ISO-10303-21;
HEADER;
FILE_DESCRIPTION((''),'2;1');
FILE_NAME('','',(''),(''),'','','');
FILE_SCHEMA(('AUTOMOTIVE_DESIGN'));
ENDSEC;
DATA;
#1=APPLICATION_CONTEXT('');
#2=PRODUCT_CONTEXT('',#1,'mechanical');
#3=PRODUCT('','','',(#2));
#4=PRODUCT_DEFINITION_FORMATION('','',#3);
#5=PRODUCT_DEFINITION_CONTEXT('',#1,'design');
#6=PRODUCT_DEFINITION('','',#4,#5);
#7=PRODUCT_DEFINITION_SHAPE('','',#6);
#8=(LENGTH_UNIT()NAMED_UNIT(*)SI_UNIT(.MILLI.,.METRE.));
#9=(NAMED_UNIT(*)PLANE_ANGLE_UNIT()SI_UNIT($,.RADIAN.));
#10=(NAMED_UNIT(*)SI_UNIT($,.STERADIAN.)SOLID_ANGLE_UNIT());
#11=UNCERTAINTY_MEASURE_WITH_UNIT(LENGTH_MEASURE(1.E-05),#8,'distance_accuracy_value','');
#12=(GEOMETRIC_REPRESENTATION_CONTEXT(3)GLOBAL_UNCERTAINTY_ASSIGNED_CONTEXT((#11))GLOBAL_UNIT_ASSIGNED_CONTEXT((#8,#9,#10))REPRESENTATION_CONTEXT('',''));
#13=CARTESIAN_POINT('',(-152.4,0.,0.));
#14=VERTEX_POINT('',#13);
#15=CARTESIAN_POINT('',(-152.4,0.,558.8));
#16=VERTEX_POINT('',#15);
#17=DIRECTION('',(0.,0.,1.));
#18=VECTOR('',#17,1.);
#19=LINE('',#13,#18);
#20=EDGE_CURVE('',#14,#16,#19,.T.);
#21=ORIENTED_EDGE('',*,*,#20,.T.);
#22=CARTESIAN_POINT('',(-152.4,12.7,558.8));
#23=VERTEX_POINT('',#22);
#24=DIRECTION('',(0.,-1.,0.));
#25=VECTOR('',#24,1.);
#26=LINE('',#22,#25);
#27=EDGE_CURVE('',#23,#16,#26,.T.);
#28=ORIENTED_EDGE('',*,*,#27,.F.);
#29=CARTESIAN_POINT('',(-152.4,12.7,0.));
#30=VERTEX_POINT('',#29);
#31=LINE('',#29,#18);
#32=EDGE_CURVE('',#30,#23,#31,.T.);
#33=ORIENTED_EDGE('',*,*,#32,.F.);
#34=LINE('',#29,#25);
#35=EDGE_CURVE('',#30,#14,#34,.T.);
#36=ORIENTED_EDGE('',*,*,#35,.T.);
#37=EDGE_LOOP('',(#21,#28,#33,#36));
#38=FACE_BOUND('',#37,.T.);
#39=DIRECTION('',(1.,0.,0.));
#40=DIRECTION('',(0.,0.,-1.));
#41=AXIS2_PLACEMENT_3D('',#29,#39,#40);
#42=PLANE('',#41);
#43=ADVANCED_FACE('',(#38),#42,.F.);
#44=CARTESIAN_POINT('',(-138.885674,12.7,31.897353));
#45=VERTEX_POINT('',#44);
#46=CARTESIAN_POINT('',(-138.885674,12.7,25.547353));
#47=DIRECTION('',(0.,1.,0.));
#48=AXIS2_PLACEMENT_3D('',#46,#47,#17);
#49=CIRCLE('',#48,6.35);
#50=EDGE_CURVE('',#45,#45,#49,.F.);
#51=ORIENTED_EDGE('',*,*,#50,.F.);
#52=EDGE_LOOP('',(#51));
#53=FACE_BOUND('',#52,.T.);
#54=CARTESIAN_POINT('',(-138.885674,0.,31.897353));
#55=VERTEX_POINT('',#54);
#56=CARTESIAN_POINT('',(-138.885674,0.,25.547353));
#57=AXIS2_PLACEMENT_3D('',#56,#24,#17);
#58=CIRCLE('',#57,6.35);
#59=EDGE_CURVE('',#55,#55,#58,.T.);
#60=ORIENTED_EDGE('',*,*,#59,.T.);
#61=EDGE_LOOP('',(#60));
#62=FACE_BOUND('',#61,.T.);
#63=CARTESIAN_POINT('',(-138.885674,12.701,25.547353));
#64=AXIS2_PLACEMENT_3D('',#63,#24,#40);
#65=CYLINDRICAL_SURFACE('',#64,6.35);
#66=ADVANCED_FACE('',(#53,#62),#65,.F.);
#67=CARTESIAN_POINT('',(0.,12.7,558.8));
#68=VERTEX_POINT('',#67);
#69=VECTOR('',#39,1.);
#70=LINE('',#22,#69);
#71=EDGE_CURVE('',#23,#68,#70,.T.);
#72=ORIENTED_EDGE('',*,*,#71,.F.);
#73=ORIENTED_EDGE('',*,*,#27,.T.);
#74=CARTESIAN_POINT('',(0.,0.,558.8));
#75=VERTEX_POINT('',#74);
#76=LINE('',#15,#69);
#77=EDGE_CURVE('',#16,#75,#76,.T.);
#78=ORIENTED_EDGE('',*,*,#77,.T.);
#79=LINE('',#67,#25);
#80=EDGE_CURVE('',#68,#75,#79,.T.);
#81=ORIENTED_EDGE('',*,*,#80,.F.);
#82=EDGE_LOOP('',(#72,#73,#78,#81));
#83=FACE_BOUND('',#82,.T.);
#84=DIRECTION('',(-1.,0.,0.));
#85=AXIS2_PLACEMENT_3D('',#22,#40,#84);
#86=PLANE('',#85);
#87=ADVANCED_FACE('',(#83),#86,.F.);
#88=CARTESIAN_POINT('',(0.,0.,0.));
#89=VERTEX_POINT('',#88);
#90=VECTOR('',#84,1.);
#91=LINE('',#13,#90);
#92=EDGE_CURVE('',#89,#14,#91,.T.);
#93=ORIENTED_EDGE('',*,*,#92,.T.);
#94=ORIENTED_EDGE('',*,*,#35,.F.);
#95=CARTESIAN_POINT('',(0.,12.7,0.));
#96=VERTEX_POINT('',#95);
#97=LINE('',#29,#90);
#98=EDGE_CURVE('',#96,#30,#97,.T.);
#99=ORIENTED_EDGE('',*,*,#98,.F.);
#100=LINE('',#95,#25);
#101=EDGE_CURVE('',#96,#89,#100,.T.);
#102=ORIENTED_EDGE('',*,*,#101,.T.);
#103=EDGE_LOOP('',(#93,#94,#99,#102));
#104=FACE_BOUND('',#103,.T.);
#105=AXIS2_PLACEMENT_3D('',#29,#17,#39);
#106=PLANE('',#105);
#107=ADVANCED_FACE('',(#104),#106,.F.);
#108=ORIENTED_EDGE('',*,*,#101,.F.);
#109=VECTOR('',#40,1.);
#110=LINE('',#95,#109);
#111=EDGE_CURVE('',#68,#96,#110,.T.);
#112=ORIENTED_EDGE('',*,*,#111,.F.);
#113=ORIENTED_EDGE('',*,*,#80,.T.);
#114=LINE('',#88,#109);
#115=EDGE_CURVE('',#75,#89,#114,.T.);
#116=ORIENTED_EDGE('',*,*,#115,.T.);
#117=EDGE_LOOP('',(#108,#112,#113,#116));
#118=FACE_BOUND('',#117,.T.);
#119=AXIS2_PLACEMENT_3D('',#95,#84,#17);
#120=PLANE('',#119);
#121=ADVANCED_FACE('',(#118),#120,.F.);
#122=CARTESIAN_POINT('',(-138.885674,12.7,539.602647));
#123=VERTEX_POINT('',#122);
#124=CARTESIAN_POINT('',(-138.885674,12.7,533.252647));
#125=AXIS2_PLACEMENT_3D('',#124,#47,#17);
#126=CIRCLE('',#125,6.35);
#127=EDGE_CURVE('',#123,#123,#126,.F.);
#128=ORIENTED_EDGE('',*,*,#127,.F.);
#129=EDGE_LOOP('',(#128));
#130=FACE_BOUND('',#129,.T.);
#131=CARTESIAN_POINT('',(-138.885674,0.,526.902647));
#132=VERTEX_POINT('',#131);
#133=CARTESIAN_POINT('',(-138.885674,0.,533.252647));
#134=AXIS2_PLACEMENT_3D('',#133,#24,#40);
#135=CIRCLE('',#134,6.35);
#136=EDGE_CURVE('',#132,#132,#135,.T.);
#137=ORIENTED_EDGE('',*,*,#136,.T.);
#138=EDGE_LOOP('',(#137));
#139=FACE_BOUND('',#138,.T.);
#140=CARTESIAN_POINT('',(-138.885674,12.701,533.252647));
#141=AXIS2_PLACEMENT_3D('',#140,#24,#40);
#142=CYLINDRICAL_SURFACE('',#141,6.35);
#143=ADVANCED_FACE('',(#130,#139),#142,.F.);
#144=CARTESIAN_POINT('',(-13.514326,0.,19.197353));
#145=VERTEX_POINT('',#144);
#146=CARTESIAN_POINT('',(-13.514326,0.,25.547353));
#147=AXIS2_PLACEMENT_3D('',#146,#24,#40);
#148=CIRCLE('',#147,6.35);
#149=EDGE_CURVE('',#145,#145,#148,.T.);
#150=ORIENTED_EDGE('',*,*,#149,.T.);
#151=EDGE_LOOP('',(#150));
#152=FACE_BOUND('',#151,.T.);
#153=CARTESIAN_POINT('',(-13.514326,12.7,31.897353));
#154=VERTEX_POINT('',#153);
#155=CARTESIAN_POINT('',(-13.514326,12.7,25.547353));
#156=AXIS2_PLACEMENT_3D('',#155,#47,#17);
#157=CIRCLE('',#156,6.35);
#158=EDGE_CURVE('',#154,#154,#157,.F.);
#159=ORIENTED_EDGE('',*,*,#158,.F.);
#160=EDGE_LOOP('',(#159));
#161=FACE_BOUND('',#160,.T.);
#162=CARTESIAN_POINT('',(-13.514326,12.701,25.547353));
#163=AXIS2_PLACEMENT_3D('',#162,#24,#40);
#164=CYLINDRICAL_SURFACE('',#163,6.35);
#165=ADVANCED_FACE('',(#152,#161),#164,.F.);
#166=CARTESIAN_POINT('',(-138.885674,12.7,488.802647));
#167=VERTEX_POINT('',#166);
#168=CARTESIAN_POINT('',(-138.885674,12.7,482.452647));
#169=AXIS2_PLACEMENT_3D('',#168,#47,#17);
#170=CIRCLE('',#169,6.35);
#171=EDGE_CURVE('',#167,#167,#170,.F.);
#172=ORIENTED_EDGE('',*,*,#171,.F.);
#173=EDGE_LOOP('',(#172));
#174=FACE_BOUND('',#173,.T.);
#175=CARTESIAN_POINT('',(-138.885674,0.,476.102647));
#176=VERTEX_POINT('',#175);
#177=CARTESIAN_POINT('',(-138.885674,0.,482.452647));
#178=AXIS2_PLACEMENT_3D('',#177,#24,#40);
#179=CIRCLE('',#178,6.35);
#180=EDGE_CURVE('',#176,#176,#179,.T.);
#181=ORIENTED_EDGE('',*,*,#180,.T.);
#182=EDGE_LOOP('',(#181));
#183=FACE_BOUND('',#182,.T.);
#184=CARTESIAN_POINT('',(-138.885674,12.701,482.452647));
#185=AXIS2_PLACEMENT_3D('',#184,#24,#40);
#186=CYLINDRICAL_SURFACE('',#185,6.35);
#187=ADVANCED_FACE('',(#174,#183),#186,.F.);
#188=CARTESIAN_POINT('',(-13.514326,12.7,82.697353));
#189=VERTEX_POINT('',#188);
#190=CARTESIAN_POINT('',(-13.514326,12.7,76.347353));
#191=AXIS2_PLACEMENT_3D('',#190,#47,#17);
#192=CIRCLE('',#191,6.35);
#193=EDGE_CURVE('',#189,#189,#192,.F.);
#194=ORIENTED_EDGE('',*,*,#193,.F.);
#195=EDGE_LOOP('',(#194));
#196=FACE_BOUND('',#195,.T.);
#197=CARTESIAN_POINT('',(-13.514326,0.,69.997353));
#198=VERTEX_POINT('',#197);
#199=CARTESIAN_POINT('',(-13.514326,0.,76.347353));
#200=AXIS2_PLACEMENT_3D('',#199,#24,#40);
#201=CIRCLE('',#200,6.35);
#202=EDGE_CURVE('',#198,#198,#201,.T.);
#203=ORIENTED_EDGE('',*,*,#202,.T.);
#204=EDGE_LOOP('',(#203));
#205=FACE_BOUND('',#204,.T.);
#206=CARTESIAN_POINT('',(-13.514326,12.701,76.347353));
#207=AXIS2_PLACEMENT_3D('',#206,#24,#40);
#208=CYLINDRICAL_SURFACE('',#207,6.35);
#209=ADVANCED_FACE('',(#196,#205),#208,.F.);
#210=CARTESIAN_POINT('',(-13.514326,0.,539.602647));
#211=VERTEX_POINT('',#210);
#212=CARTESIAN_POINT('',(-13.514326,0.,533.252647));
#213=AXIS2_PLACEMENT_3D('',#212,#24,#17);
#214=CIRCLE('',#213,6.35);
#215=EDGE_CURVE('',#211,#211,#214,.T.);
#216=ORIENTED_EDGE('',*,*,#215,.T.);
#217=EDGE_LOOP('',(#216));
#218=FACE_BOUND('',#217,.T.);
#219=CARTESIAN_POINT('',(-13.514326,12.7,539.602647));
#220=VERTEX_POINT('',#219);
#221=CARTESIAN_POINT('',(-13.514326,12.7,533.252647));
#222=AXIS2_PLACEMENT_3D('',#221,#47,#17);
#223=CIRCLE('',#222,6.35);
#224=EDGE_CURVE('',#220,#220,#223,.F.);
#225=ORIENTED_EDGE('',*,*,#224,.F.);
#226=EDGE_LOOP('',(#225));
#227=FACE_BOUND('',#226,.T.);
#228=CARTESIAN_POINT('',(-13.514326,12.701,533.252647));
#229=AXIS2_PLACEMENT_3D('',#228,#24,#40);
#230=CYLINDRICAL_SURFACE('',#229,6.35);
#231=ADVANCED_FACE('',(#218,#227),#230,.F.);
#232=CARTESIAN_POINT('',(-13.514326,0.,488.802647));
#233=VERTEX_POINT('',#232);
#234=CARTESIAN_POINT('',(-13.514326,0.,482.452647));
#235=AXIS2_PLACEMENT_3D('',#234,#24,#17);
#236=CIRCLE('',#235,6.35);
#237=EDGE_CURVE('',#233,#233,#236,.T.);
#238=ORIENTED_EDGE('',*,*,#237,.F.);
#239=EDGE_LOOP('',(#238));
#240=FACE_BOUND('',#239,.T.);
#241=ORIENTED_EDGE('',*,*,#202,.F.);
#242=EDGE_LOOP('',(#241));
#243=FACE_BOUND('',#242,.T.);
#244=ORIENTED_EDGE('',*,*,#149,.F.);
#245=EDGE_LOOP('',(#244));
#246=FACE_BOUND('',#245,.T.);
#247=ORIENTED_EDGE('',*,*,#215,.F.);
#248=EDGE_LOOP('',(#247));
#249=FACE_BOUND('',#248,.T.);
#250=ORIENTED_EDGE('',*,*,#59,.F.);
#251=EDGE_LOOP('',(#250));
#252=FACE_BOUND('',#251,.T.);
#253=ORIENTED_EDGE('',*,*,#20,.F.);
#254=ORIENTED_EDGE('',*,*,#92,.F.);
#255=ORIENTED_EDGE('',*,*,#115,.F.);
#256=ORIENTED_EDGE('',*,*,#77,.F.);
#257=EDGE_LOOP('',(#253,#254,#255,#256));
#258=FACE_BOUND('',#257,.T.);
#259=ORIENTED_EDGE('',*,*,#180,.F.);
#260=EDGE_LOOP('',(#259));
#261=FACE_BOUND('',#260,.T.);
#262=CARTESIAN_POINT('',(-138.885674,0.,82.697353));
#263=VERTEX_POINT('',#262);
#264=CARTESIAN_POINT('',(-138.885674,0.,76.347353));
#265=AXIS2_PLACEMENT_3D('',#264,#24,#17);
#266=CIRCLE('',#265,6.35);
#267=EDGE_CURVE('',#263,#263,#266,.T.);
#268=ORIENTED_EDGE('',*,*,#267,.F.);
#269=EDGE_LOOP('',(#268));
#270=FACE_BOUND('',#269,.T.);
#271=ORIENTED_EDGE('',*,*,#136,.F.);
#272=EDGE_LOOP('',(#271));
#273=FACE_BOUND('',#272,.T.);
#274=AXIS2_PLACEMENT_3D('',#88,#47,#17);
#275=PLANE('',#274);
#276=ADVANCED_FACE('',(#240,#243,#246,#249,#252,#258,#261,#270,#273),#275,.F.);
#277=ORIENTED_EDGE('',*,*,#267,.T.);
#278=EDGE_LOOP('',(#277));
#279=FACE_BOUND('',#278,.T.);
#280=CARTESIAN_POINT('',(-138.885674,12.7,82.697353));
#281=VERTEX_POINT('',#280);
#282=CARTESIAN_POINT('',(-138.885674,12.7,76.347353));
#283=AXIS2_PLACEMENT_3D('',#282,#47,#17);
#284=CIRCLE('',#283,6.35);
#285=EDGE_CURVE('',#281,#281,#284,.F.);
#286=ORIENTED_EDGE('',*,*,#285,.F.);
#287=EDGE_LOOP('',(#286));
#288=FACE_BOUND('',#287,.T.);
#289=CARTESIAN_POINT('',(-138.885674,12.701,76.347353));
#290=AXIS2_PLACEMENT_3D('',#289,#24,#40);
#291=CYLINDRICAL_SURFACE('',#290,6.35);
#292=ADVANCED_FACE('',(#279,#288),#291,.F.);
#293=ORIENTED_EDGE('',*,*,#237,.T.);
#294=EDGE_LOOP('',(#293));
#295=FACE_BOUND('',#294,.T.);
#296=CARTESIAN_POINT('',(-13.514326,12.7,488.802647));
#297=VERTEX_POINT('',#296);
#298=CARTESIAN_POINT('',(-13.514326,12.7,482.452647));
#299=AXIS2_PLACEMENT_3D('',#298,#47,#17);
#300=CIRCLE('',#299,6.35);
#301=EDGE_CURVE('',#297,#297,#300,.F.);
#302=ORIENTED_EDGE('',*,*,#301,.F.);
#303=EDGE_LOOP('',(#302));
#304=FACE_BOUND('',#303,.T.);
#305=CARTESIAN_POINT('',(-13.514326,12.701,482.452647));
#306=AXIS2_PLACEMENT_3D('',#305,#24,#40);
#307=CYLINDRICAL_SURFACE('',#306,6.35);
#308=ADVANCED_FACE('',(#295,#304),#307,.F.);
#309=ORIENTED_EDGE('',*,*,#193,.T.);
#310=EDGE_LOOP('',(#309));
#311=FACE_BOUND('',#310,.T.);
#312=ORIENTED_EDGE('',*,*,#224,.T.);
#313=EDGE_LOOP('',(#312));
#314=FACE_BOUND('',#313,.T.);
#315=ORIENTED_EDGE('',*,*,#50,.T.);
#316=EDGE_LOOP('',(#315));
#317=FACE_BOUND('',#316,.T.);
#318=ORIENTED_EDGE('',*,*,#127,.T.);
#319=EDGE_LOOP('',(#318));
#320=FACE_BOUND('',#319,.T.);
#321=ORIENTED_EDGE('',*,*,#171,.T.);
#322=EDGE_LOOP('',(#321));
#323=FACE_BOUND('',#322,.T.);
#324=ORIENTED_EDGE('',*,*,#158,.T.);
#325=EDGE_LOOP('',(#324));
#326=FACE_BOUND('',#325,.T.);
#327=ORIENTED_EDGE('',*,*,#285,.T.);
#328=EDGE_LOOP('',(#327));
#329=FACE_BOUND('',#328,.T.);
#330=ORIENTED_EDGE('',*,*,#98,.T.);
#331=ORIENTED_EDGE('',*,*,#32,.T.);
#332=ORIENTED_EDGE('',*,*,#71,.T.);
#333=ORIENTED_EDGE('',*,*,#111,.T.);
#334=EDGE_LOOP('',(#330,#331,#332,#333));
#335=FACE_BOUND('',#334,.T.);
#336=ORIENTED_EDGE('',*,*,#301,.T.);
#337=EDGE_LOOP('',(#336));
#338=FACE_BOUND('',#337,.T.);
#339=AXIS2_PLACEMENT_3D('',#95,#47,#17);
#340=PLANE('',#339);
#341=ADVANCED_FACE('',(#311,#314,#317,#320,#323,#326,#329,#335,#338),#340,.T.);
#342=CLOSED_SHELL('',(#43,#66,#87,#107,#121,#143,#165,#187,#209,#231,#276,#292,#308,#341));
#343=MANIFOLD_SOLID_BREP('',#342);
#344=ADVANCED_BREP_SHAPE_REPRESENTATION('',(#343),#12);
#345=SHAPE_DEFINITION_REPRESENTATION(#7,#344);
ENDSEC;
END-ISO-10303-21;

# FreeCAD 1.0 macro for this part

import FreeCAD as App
import Part
import Sketcher
Q = App.Units.Quantity

doc = App.newDocument("Part")
params = doc.addObject("Spreadsheet::Sheet", "Params")
for row, (alias, value) in enumerate([
    ("sketch1_width", "6 in"),
    ("sketch1_height", "22 in"),
    ("pad1_length", "0.5 in"),
    ("sketch2_diameter", "0.5 in"),
    ("sketch3_diameter", "0.5 in"),
    ("sketch4_diameter", "0.5 in"),
    ("sketch5_diameter", "0.5 in"),
    ("sketch6_diameter", "0.5 in"),
    ("sketch7_diameter", "0.5 in"),
    ("sketch8_diameter", "0.5 in"),
    ("sketch9_diameter", "0.5 in"),
], start=1):
    params.set(f"A{row}", alias)
    params.set(f"B{row}", "=" + value)
    params.setAlias(f"B{row}", alias)

body = doc.addObject("PartDesign::Body", "Body")

# Sketch on XZ plane
sketch1 = body.newObject("Sketcher::SketchObject", "Sketch")
sketch1.AttachmentSupport = (doc.getObject("XZ_Plane"), [""])
sketch1.MapMode = "FlatFace"
sketch1.addGeometry([
    Part.LineSegment(App.Vector(-152, 0, 0), App.Vector(-152, 559, 0)),
    Part.LineSegment(App.Vector(-152, 559, 0), App.Vector(0, 559, 0)),
    Part.LineSegment(App.Vector(0, 559, 0), App.Vector(0, 0, 0)),
    Part.LineSegment(App.Vector(0, 0, 0), App.Vector(-152, 0, 0)),
], False)
sketch1.addConstraint([
    Sketcher.Constraint("Coincident", 0, 2, 1, 1),
    Sketcher.Constraint("Coincident", 1, 2, 2, 1),
    Sketcher.Constraint("Coincident", 2, 2, 3, 1),
    Sketcher.Constraint("Coincident", 3, 2, 0, 1),
    Sketcher.Constraint("Vertical", 0),
    Sketcher.Constraint("Horizontal", 1),
    Sketcher.Constraint("Vertical", 2),
    Sketcher.Constraint("Horizontal", 3),
    Sketcher.Constraint("Coincident", 2, 2, -1, 1),
    Sketcher.Constraint("DistanceX", 1, 1, 1, 2, Q("6 in")),
    Sketcher.Constraint("DistanceY", 0, 1, 0, 2, Q("22 in")),
])
sketch1.setExpression("Constraints[9]", "Params.sketch1_width")
sketch1.setExpression("Constraints[10]", "Params.sketch1_height")
pad1 = body.newObject("PartDesign::Pad", "Pad")
pad1.Profile = sketch1
pad1.setExpression("Length", "Params.pad1_length")
pad1.Reversed = True

# Sketch on XZ plane
sketch2 = body.newObject("Sketcher::SketchObject", "Sketch001")
sketch2.AttachmentSupport = (doc.getObject("XZ_Plane"), [""])
sketch2.MapMode = "FlatFace"
sketch2.addGeometry(Part.Circle(App.Vector(-14, 26, 0), App.Vector(0, 0, 1), 6), False)
sketch2.addConstraint([
    Sketcher.Constraint("Diameter", 0, Q("0.5 in")),
    Sketcher.Constraint("DistanceX", 0, 3, -1, 1, 13.514326),
    Sketcher.Constraint("DistanceY", -1, 1, 0, 3, 25.547353),
])
sketch2.setExpression("Constraints[0]", "Params.sketch2_diameter")
pocket1 = body.newObject("PartDesign::Pocket", "Pocket")
pocket1.Profile = sketch2
pocket1.Type = "UpToFirst"

# Sketch on XZ plane
sketch3 = body.newObject("Sketcher::SketchObject", "Sketch002")
sketch3.AttachmentSupport = (doc.getObject("XZ_Plane"), [""])
sketch3.MapMode = "FlatFace"
sketch3.addGeometry(Part.Circle(App.Vector(-14, 76, 0), App.Vector(0, 0, 1), 6), False)
sketch3.addConstraint([
    Sketcher.Constraint("Diameter", 0, Q("0.5 in")),
    Sketcher.Constraint("DistanceX", 0, 3, -1, 1, 13.514326),
    Sketcher.Constraint("DistanceY", -1, 1, 0, 3, 76.347353),
])
sketch3.setExpression("Constraints[0]", "Params.sketch3_diameter")
pocket2 = body.newObject("PartDesign::Pocket", "Pocket001")
pocket2.Profile = sketch3
pocket2.Type = "UpToFirst"

# Sketch on XZ plane
sketch4 = body.newObject("Sketcher::SketchObject", "Sketch003")
sketch4.AttachmentSupport = (doc.getObject("XZ_Plane"), [""])
sketch4.MapMode = "FlatFace"
sketch4.addGeometry(Part.Circle(App.Vector(-14, 482, 0), App.Vector(0, 0, 1), 6), False)
sketch4.addConstraint([
    Sketcher.Constraint("Diameter", 0, Q("0.5 in")),
    Sketcher.Constraint("DistanceX", 0, 3, -1, 1, 13.514326),
    Sketcher.Constraint("DistanceY", -1, 1, 0, 3, 482.452647),
])
sketch4.setExpression("Constraints[0]", "Params.sketch4_diameter")
pocket3 = body.newObject("PartDesign::Pocket", "Pocket002")
pocket3.Profile = sketch4
pocket3.Type = "UpToFirst"

# Sketch on XZ plane
sketch5 = body.newObject("Sketcher::SketchObject", "Sketch004")
sketch5.AttachmentSupport = (doc.getObject("XZ_Plane"), [""])
sketch5.MapMode = "FlatFace"
sketch5.addGeometry(Part.Circle(App.Vector(-14, 533, 0), App.Vector(0, 0, 1), 6), False)
sketch5.addConstraint([
    Sketcher.Constraint("Diameter", 0, Q("0.5 in")),
    Sketcher.Constraint("DistanceX", 0, 3, -1, 1, 13.514326),
    Sketcher.Constraint("DistanceY", -1, 1, 0, 3, 533.252647),
])
sketch5.setExpression("Constraints[0]", "Params.sketch5_diameter")
pocket4 = body.newObject("PartDesign::Pocket", "Pocket003")
pocket4.Profile = sketch5
pocket4.Type = "UpToFirst"

# Sketch on XZ plane
sketch6 = body.newObject("Sketcher::SketchObject", "Sketch005")
sketch6.AttachmentSupport = (doc.getObject("XZ_Plane"), [""])
sketch6.MapMode = "FlatFace"
sketch6.addGeometry(Part.Circle(App.Vector(-139, 76, 0), App.Vector(0, 0, 1), 6), False)
sketch6.addConstraint([
    Sketcher.Constraint("Diameter", 0, Q("0.5 in")),
    Sketcher.Constraint("DistanceX", 0, 3, -1, 1, 138.885674),
    Sketcher.Constraint("DistanceY", -1, 1, 0, 3, 76.347353),
])
sketch6.setExpression("Constraints[0]", "Params.sketch6_diameter")
pocket5 = body.newObject("PartDesign::Pocket", "Pocket004")
pocket5.Profile = sketch6
pocket5.Type = "UpToFirst"

# Sketch on XZ plane
sketch7 = body.newObject("Sketcher::SketchObject", "Sketch006")
sketch7.AttachmentSupport = (doc.getObject("XZ_Plane"), [""])
sketch7.MapMode = "FlatFace"
sketch7.addGeometry(Part.Circle(App.Vector(-139, 26, 0), App.Vector(0, 0, 1), 6), False)
sketch7.addConstraint([
    Sketcher.Constraint("Diameter", 0, Q("0.5 in")),
    Sketcher.Constraint("DistanceX", 0, 3, -1, 1, 138.885674),
    Sketcher.Constraint("DistanceY", -1, 1, 0, 3, 25.547353),
])
sketch7.setExpression("Constraints[0]", "Params.sketch7_diameter")
pocket6 = body.newObject("PartDesign::Pocket", "Pocket005")
pocket6.Profile = sketch7
pocket6.Type = "UpToFirst"

# Sketch on XZ plane
sketch8 = body.newObject("Sketcher::SketchObject", "Sketch007")
sketch8.AttachmentSupport = (doc.getObject("XZ_Plane"), [""])
sketch8.MapMode = "FlatFace"
sketch8.addGeometry(Part.Circle(App.Vector(-139, 482, 0), App.Vector(0, 0, 1), 6), False)
sketch8.addConstraint([
    Sketcher.Constraint("Diameter", 0, Q("0.5 in")),
    Sketcher.Constraint("DistanceX", 0, 3, -1, 1, 138.885674),
    Sketcher.Constraint("DistanceY", -1, 1, 0, 3, 482.452647),
])
sketch8.setExpression("Constraints[0]", "Params.sketch8_diameter")
pocket7 = body.newObject("PartDesign::Pocket", "Pocket006")
pocket7.Profile = sketch8
pocket7.Type = "UpToFirst"

# Sketch on XZ plane
sketch9 = body.newObject("Sketcher::SketchObject", "Sketch008")
sketch9.AttachmentSupport = (doc.getObject("XZ_Plane"), [""])
sketch9.MapMode = "FlatFace"
sketch9.addGeometry(Part.Circle(App.Vector(-139, 533, 0), App.Vector(0, 0, 1), 6), False)
sketch9.addConstraint([
    Sketcher.Constraint("Diameter", 0, Q("0.5 in")),
    Sketcher.Constraint("DistanceX", 0, 3, -1, 1, 138.885674),
    Sketcher.Constraint("DistanceY", -1, 1, 0, 3, 533.252647),
])
sketch9.setExpression("Constraints[0]", "Params.sketch9_diameter")
pocket8 = body.newObject("PartDesign::Pocket", "Pocket007")
pocket8.Profile = sketch9
pocket8.Type = "UpToFirst"

doc.recompute()
